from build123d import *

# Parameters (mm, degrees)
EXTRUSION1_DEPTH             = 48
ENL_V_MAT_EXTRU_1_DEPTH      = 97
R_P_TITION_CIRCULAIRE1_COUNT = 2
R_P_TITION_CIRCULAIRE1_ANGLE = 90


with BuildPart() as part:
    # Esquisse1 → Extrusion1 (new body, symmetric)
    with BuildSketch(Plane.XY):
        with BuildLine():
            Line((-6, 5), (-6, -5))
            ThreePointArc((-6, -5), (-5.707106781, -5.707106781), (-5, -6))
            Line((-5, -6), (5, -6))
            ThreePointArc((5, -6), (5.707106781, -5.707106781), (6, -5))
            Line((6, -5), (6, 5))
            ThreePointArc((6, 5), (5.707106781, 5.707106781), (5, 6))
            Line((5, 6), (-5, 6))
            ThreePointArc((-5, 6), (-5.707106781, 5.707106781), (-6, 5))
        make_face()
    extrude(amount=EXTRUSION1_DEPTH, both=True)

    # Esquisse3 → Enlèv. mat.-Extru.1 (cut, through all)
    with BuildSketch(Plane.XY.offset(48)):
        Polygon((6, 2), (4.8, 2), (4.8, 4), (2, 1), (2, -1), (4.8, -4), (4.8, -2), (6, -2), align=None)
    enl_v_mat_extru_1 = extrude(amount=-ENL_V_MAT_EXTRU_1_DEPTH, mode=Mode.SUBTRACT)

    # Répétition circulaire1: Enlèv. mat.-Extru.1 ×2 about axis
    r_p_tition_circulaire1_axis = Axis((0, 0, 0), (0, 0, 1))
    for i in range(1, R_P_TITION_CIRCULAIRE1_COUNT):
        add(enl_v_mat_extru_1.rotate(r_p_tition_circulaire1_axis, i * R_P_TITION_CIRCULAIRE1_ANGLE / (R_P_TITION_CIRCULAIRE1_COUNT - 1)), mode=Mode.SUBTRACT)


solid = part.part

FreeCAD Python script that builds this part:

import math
import FreeCAD as App
import Part
import Sketcher


def add_polygon(sketch, points):
    """Adds a closed chain of lines whose ends are joined by coincident constraints."""
    first, n = sketch.GeometryCount, len(points)
    for a, b in zip(points, points[1:] + points[:1]):
        sketch.addGeometry(Part.LineSegment(App.Vector(*a, 0), App.Vector(*b, 0)), False)
    for i in range(n):
        sketch.addConstraint(Sketcher.Constraint("Coincident", first + i, 2, first + (i + 1) % n, 1))

doc = App.newDocument("Part")
body = doc.addObject("PartDesign::Body", "Body")

# Sketch on XY plane
sketch1 = doc.addObject("Sketcher::SketchObject", "Sketch")
body.addObject(sketch1)
sketch1.AttachmentSupport = (doc.XY_Plane, [""])
sketch1.MapMode = "FlatFace"
sketch1.addGeometry([
    Part.LineSegment(App.Vector(-6, 5, 0), App.Vector(-6, -5, 0)),  # 0
    Part.ArcOfCircle(Part.Circle(App.Vector(-5, -5, 0), App.Vector(0, 0, 1), 1), math.radians(-180), math.radians(-90)),  # 1
    Part.LineSegment(App.Vector(-5, -6, 0), App.Vector(5, -6, 0)),  # 2
    Part.ArcOfCircle(Part.Circle(App.Vector(5, -5, 0), App.Vector(0, 0, 1), 1), math.radians(-90), math.radians(0)),  # 3
    Part.LineSegment(App.Vector(6, -5, 0), App.Vector(6, 5, 0)),  # 4
    Part.ArcOfCircle(Part.Circle(App.Vector(5, 5, 0), App.Vector(0, 0, 1), 1), math.radians(0), math.radians(90)),  # 5
    Part.LineSegment(App.Vector(5, 6, 0), App.Vector(-5, 6, 0)),  # 6
    Part.ArcOfCircle(Part.Circle(App.Vector(-5, 5, 0), App.Vector(0, 0, 1), 1), math.radians(90), math.radians(180)),  # 7
], False)
sketch1.addConstraint([
    Sketcher.Constraint("Tangent", 0, 2, 1, 1),
    Sketcher.Constraint("Tangent", 1, 2, 2, 1),
    Sketcher.Constraint("Tangent", 2, 2, 3, 1),
    Sketcher.Constraint("Tangent", 3, 2, 4, 1),
    Sketcher.Constraint("Tangent", 4, 2, 5, 1),
    Sketcher.Constraint("Tangent", 5, 2, 6, 1),
    Sketcher.Constraint("Tangent", 6, 2, 7, 1),
    Sketcher.Constraint("Tangent", 7, 2, 0, 1),
    Sketcher.Constraint("Vertical", 0),
    Sketcher.Constraint("Horizontal", 2),
    Sketcher.Constraint("Vertical", 4),
    Sketcher.Constraint("Horizontal", 6),
    Sketcher.Constraint("Equal", 1, 3),
    Sketcher.Constraint("Equal", 3, 5),
    Sketcher.Constraint("Equal", 5, 7),
    Sketcher.Constraint("Symmetric", 1, 3, 5, 3, -1, 1),
    Sketcher.Constraint("Equal", 6, 0),
    Sketcher.Constraint("Radius", 1, 1.0),
    Sketcher.Constraint("DistanceX", 2, 1, 2, 2, 10.0),
])
pad1 = doc.addObject("PartDesign::Pad", "Pad")
body.addObject(pad1)
pad1.Profile = sketch1
pad1.Length = 96
pad1.Midplane = True

# Sketch on XY plane
sketch2 = doc.addObject("Sketcher::SketchObject", "Sketch001")
body.addObject(sketch2)
sketch2.AttachmentSupport = (doc.XY_Plane, [""])
sketch2.MapMode = "FlatFace"
sketch2.AttachmentOffset = App.Placement(App.Vector(0, 0, 48), App.Rotation())
add_polygon(sketch2, [(6, 2), (4.8, 2), (4.8, 4), (2, 1), (2, -1), (4.8, -4), (4.8, -2), (6, -2)])  # lines 0-7
sketch2.addConstraint([
    Sketcher.Constraint("Horizontal", 0),
    Sketcher.Constraint("Vertical", 1),
    Sketcher.Constraint("Vertical", 3),
    Sketcher.Constraint("Vertical", 5),
    Sketcher.Constraint("Horizontal", 6),
    Sketcher.Constraint("Vertical", 7),
    Sketcher.Constraint("Symmetric", 1, 2, 4, 2, -1),
    Sketcher.Constraint("Equal", 1, 3),
    Sketcher.Constraint("Equal", 3, 5),
    Sketcher.Constraint("Equal", 2, 4),
    Sketcher.Constraint("DistanceY", 1, 1, 1, 2, 2.0),
    Sketcher.Constraint("DistanceY", 7, 1, 7, 2, 4.0),
    Sketcher.Constraint("DistanceX", 0, 2, 0, 1, 1.2),
    Sketcher.Constraint("DistanceX", -1, 1, 2, 2, 2.0),
    Sketcher.Constraint("DistanceX", -1, 1, 6, 2, 6.0),
])
pocket1 = doc.addObject("PartDesign::Pocket", "Pocket")
body.addObject(pocket1)
pocket1.Profile = sketch2
pocket1.Type = "ThroughAll"
doc.recompute()

polarpattern = doc.addObject("PartDesign::PolarPattern", "PolarPattern")
body.addObject(polarpattern)
polarpattern.Originals = [pocket1]
polarpattern.Axis = (doc.Z_Axis, [""])
polarpattern.Angle = 90
polarpattern.Occurrences = 2
body.Tip = polarpattern

doc.recompute()
